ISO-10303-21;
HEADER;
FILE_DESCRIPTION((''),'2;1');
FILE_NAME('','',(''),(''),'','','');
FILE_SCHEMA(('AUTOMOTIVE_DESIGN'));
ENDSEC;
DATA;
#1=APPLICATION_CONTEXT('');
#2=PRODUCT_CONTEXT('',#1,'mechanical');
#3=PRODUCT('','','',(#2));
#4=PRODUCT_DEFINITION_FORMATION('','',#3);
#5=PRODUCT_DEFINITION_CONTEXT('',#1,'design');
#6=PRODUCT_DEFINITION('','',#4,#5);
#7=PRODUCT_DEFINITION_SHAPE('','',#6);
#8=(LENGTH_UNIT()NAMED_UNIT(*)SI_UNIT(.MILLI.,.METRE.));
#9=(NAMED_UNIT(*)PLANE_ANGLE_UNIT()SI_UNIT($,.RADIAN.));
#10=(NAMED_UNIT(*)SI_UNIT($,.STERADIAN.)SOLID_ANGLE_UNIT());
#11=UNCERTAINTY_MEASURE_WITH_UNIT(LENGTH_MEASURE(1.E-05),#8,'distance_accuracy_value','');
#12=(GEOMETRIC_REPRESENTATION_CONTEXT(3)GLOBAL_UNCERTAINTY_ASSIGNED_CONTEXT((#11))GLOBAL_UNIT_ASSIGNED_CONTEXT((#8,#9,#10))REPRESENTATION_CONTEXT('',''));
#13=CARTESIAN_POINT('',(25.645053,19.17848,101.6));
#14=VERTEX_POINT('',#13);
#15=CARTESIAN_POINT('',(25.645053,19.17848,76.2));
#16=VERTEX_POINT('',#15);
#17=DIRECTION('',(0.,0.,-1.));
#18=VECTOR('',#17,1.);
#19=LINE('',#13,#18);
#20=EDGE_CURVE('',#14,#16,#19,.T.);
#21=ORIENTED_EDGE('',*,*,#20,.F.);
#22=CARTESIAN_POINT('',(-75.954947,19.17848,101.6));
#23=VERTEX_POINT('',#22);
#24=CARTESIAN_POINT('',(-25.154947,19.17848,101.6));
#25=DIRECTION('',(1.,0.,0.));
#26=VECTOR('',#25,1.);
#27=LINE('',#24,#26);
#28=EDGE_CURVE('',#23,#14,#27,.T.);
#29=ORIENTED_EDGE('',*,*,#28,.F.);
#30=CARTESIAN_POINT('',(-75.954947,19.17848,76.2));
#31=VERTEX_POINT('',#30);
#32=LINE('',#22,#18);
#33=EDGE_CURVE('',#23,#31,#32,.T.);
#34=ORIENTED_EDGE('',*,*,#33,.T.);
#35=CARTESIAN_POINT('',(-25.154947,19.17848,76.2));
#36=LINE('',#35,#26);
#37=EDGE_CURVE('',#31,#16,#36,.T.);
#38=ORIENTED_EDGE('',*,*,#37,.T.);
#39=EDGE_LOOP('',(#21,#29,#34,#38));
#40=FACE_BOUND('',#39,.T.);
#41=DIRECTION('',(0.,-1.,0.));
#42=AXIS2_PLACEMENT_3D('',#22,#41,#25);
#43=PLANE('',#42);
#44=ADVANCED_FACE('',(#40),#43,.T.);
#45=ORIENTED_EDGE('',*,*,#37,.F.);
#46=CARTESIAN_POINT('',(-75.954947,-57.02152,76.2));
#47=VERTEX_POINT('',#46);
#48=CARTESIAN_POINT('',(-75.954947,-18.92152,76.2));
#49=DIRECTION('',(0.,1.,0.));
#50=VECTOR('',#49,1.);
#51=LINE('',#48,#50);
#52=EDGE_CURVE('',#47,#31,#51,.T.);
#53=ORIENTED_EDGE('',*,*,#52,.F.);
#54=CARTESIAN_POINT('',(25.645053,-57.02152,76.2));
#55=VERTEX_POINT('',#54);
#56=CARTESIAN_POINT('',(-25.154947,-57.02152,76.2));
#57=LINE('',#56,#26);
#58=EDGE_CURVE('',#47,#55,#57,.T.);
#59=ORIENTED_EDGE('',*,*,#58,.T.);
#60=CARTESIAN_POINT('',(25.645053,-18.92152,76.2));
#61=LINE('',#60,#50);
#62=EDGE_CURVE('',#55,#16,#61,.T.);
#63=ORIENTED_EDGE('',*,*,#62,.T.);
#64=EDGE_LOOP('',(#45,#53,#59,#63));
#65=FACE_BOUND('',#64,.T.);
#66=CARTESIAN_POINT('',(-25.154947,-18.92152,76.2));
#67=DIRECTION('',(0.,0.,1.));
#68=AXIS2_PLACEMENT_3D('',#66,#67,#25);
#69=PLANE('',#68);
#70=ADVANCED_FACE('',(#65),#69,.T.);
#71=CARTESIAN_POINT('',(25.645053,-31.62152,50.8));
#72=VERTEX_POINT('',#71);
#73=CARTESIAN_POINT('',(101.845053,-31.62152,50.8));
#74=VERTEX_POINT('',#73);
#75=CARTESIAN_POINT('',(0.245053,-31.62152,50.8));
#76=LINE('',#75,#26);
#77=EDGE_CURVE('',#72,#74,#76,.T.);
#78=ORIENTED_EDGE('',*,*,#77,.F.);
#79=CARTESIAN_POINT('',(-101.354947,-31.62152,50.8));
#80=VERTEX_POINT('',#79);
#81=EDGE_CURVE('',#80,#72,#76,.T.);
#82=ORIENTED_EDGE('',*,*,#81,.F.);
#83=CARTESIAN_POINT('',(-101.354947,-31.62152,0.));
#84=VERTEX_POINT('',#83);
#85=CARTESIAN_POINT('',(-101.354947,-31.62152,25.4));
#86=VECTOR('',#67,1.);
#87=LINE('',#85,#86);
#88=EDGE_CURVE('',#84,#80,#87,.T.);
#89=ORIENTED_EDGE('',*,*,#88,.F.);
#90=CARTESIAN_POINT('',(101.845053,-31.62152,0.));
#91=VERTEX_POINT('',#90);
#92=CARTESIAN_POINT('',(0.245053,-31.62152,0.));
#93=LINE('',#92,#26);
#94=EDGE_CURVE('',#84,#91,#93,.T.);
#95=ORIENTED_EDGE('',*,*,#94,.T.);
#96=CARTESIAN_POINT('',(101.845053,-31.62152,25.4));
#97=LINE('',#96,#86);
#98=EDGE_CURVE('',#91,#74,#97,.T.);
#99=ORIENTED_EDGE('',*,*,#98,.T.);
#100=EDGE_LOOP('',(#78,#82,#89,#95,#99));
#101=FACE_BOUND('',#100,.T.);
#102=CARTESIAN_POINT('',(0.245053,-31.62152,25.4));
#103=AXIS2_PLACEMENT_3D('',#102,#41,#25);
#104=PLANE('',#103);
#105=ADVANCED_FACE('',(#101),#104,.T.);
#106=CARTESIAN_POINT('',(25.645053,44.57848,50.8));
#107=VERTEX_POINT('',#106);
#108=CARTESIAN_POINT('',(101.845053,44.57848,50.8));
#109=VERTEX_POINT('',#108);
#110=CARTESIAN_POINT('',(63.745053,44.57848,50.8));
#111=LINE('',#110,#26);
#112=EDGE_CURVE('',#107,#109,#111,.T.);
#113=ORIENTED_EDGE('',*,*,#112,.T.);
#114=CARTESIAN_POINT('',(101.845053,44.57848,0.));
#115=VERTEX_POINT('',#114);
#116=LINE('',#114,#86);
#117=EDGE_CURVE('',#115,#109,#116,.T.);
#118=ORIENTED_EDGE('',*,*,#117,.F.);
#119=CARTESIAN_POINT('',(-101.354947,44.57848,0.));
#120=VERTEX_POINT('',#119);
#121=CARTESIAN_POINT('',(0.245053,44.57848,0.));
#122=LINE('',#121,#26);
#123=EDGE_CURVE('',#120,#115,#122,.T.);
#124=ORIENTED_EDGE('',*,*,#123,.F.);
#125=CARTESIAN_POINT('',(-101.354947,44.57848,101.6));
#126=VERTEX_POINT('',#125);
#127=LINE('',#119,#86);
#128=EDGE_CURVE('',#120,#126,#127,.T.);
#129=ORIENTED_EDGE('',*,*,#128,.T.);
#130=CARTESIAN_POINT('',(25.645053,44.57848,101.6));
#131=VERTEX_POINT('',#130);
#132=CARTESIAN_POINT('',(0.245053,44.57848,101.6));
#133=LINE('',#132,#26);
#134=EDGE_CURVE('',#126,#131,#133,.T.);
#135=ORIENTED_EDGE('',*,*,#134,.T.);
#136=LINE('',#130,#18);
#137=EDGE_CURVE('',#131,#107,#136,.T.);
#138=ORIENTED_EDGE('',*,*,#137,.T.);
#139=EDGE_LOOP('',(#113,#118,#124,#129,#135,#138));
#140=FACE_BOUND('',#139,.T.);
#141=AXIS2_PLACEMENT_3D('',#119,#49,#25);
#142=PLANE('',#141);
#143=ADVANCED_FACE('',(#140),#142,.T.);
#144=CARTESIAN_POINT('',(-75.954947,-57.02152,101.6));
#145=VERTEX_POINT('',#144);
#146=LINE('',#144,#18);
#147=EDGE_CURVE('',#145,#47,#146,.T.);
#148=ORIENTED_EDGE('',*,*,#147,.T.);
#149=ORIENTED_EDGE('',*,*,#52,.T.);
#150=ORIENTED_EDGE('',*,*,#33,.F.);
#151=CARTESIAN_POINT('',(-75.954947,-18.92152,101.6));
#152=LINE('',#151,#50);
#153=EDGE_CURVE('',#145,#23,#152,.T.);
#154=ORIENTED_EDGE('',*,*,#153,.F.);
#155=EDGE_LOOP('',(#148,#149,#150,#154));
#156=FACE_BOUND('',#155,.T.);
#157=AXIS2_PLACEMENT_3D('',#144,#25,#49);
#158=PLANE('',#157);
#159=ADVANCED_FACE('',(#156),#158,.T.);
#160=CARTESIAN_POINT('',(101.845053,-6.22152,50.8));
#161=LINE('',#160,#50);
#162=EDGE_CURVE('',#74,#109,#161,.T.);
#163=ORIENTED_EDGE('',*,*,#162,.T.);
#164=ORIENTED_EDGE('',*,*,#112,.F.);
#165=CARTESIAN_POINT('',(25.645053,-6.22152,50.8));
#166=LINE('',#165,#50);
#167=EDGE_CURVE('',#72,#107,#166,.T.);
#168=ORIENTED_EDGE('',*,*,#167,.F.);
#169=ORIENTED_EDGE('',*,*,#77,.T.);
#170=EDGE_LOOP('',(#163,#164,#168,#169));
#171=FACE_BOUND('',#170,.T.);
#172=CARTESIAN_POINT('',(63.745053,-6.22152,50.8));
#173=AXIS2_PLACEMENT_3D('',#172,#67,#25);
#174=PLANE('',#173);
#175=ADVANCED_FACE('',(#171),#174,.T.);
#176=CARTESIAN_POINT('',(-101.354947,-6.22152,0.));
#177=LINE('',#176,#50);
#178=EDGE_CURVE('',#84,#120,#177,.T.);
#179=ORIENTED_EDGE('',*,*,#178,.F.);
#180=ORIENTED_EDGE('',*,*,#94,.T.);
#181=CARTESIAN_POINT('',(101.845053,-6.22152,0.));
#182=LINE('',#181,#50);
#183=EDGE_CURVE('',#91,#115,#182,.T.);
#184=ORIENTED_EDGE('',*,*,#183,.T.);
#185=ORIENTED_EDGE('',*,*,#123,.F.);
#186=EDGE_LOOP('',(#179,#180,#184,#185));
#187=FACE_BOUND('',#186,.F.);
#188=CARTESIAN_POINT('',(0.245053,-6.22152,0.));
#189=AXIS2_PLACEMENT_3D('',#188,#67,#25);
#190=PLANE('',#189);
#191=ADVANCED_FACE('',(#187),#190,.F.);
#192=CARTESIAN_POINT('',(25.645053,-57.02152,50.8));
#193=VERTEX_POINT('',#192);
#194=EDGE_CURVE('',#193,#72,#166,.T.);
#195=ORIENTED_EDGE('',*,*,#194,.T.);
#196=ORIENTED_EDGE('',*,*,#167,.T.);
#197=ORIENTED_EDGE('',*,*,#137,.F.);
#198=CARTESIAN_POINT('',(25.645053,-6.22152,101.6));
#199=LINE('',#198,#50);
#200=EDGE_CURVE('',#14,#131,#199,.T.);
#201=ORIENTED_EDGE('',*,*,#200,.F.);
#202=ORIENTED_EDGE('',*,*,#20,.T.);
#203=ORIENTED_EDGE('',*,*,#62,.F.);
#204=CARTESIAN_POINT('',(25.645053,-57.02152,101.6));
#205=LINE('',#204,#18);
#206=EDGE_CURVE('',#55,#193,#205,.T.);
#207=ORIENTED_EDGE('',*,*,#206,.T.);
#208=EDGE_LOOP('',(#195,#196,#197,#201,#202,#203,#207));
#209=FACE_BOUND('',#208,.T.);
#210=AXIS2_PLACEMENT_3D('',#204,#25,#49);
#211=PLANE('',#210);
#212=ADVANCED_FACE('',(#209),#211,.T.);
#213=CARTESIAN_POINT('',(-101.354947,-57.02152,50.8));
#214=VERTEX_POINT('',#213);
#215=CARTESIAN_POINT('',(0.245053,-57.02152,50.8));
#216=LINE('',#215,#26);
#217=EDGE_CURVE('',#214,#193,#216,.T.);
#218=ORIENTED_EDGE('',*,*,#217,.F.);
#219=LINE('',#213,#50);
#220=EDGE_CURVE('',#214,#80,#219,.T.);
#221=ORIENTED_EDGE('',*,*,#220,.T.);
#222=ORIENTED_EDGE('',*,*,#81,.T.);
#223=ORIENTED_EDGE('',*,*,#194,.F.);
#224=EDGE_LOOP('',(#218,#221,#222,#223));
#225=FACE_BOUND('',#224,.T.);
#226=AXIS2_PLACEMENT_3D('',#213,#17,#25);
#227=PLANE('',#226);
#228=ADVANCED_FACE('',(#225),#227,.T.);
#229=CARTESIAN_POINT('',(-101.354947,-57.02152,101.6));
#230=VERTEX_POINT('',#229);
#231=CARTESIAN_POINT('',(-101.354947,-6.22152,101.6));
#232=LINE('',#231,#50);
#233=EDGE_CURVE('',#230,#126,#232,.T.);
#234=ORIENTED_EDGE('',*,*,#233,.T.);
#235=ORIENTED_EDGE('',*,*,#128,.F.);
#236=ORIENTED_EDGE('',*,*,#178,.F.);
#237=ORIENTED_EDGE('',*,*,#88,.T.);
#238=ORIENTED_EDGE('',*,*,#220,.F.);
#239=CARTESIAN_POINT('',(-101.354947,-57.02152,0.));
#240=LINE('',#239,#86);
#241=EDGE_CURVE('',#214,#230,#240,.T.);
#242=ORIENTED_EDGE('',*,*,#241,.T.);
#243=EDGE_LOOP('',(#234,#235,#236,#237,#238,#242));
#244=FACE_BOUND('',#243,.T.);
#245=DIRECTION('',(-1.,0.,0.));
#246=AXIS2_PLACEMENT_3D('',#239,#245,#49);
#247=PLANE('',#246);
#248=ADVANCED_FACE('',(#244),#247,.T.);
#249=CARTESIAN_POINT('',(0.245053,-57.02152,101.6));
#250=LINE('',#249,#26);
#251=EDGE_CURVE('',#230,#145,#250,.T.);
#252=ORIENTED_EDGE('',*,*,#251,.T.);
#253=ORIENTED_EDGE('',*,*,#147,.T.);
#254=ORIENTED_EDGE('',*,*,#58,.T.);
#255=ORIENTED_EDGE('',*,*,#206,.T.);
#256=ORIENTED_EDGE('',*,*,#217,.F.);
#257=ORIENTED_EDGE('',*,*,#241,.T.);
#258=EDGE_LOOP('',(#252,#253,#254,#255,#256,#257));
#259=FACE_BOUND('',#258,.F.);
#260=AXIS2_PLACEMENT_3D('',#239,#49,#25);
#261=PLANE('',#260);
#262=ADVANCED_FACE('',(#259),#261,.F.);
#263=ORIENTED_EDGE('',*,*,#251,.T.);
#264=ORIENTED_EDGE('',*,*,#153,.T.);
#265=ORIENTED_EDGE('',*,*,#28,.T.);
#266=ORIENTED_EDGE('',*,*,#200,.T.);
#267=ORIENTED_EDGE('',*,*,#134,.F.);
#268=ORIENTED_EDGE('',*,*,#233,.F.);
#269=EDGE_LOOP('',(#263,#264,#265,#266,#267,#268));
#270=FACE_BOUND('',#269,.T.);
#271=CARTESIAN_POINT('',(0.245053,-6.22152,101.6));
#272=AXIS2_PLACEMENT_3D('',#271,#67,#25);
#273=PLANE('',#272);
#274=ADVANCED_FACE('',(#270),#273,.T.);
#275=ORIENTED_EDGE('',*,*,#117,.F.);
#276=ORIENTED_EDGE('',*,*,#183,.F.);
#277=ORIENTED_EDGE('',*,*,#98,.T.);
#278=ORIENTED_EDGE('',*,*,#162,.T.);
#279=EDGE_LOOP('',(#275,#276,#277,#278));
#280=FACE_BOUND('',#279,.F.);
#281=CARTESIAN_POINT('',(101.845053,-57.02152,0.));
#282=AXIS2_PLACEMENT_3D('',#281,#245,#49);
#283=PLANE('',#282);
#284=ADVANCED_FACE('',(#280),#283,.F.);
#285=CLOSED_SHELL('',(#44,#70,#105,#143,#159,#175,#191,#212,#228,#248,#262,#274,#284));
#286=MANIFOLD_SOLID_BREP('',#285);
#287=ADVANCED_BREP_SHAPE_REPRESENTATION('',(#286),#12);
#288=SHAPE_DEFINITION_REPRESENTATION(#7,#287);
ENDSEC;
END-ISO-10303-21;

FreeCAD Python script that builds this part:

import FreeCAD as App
import Part
import Sketcher
from FreeCAD import Vector
Q = App.Units.Quantity

doc = App.newDocument("Part")
body = doc.addObject("PartDesign::Body", "Body")

# Sketch on XY plane
sketch1 = body.newObject("Sketcher::SketchObject", "Sketch")
sketch1.AttachmentSupport = (doc.getObject("XY_Plane"), [""])
sketch1.MapMode = "FlatFace"
sketch1.addGeometry(Part.LineSegment(Vector(-101, 45, 0), Vector(-101, -57, 0)), False)
sketch1.addGeometry(Part.LineSegment(Vector(-101, -57, 0), Vector(102, -57, 0)), False)
sketch1.addGeometry(Part.LineSegment(Vector(102, -57, 0), Vector(102, 45, 0)), False)
sketch1.addGeometry(Part.LineSegment(Vector(102, 45, 0), Vector(-101, 45, 0)), False)
sketch1.addConstraint(Sketcher.Constraint("Coincident", 0, 2, 1, 1))
sketch1.addConstraint(Sketcher.Constraint("Coincident", 1, 2, 2, 1))
sketch1.addConstraint(Sketcher.Constraint("Coincident", 2, 2, 3, 1))
sketch1.addConstraint(Sketcher.Constraint("Coincident", 3, 2, 0, 1))
sketch1.addConstraint(Sketcher.Constraint("Vertical", 0))
sketch1.addConstraint(Sketcher.Constraint("Horizontal", 1))
sketch1.addConstraint(Sketcher.Constraint("Vertical", 2))
sketch1.addConstraint(Sketcher.Constraint("Horizontal", 3))
sketch1.addConstraint(Sketcher.Constraint("DistanceX", 1, 1, 1, 2, Q("8 in")))
sketch1.addConstraint(Sketcher.Constraint("DistanceY", 0, 2, 0, 1, Q("4 in")))
sketch1.addConstraint(Sketcher.Constraint("DistanceY", 0, 2, -1, 1, Q("57.02152 mm")))
sketch1.addConstraint(Sketcher.Constraint("DistanceX", 0, 2, -1, 1, Q("101.354947 mm")))
pad1 = body.newObject("PartDesign::Pad", "Pad")
pad1.Profile = sketch1
pad1.Length = Q("4 in")

# Sketch on XZ plane
sketch2 = body.newObject("Sketcher::SketchObject", "Sketch001")
sketch2.AttachmentSupport = (doc.getObject("XZ_Plane"), [""])
sketch2.MapMode = "FlatFace"
sketch2.AttachmentOffset = App.Placement(Vector(0, 0, 57.02152), App.Rotation())
sketch2.addGeometry(Part.LineSegment(Vector(-101, 51, 0), Vector(-101, 0, 0)), False)
sketch2.addGeometry(Part.LineSegment(Vector(-101, 0, 0), Vector(102, 0, 0)), False)
sketch2.addGeometry(Part.LineSegment(Vector(102, 0, 0), Vector(102, 51, 0)), False)
sketch2.addGeometry(Part.LineSegment(Vector(102, 51, 0), Vector(-101, 51, 0)), False)
sketch2.addConstraint(Sketcher.Constraint("Coincident", 0, 2, 1, 1))
sketch2.addConstraint(Sketcher.Constraint("Coincident", 1, 2, 2, 1))
sketch2.addConstraint(Sketcher.Constraint("Coincident", 2, 2, 3, 1))
sketch2.addConstraint(Sketcher.Constraint("Coincident", 3, 2, 0, 1))
sketch2.addConstraint(Sketcher.Constraint("Vertical", 0))
sketch2.addConstraint(Sketcher.Constraint("Horizontal", 1))
sketch2.addConstraint(Sketcher.Constraint("Vertical", 2))
sketch2.addConstraint(Sketcher.Constraint("Horizontal", 3))
sketch2.addConstraint(Sketcher.Constraint("PointOnObject", 0, 2, -1))
sketch2.addConstraint(Sketcher.Constraint("DistanceX", 1, 1, 1, 2, Q("8 in")))
sketch2.addConstraint(Sketcher.Constraint("DistanceY", 0, 2, 0, 1, Q("2 in")))
sketch2.addConstraint(Sketcher.Constraint("DistanceX", 0, 2, -1, 1, Q("101.354947 mm")))
pocket1 = body.newObject("PartDesign::Pocket", "Pocket")
pocket1.Profile = sketch2
pocket1.Length = Q("1 in")

# Sketch on XY plane
sketch3 = body.newObject("Sketcher::SketchObject", "Sketch002")
sketch3.AttachmentSupport = (doc.getObject("XY_Plane"), [""])
sketch3.MapMode = "FlatFace"
sketch3.AttachmentOffset = App.Placement(Vector(0, 0, 4 * 25.4), App.Rotation())
sketch3.addGeometry(Part.LineSegment(Vector(26, 45, 0), Vector(26, -57, 0)), False)
sketch3.addGeometry(Part.LineSegment(Vector(26, -57, 0), Vector(102, -57, 0)), False)
sketch3.addGeometry(Part.LineSegment(Vector(102, -57, 0), Vector(102, 45, 0)), False)
sketch3.addGeometry(Part.LineSegment(Vector(102, 45, 0), Vector(26, 45, 0)), False)
sketch3.addConstraint(Sketcher.Constraint("Coincident", 0, 2, 1, 1))
sketch3.addConstraint(Sketcher.Constraint("Coincident", 1, 2, 2, 1))
sketch3.addConstraint(Sketcher.Constraint("Coincident", 2, 2, 3, 1))
sketch3.addConstraint(Sketcher.Constraint("Coincident", 3, 2, 0, 1))
sketch3.addConstraint(Sketcher.Constraint("Vertical", 0))
sketch3.addConstraint(Sketcher.Constraint("Horizontal", 1))
sketch3.addConstraint(Sketcher.Constraint("Vertical", 2))
sketch3.addConstraint(Sketcher.Constraint("Horizontal", 3))
sketch3.addConstraint(Sketcher.Constraint("DistanceX", 1, 1, 1, 2, Q("3 in")))
sketch3.addConstraint(Sketcher.Constraint("DistanceY", 0, 2, 0, 1, Q("4 in")))
sketch3.addConstraint(Sketcher.Constraint("DistanceY", 0, 2, -1, 1, Q("57.02152 mm")))
sketch3.addConstraint(Sketcher.Constraint("DistanceX", -1, 1, 0, 2, Q("25.645053 mm")))
pocket2 = body.newObject("PartDesign::Pocket", "Pocket001")
pocket2.Profile = sketch3
pocket2.Length = Q("2 in")

# Sketch on XY plane
sketch4 = body.newObject("Sketcher::SketchObject", "Sketch003")
sketch4.AttachmentSupport = (doc.getObject("XY_Plane"), [""])
sketch4.MapMode = "FlatFace"
sketch4.AttachmentOffset = App.Placement(Vector(0, 0, 4 * 25.4), App.Rotation())
sketch4.addGeometry(Part.LineSegment(Vector(-76, 19, 0), Vector(-76, -57, 0)), False)
sketch4.addGeometry(Part.LineSegment(Vector(-76, -57, 0), Vector(26, -57, 0)), False)
sketch4.addGeometry(Part.LineSegment(Vector(26, -57, 0), Vector(26, 19, 0)), False)
sketch4.addGeometry(Part.LineSegment(Vector(26, 19, 0), Vector(-76, 19, 0)), False)
sketch4.addConstraint(Sketcher.Constraint("Coincident", 0, 2, 1, 1))
sketch4.addConstraint(Sketcher.Constraint("Coincident", 1, 2, 2, 1))
sketch4.addConstraint(Sketcher.Constraint("Coincident", 2, 2, 3, 1))
sketch4.addConstraint(Sketcher.Constraint("Coincident", 3, 2, 0, 1))
sketch4.addConstraint(Sketcher.Constraint("Vertical", 0))
sketch4.addConstraint(Sketcher.Constraint("Horizontal", 1))
sketch4.addConstraint(Sketcher.Constraint("Vertical", 2))
sketch4.addConstraint(Sketcher.Constraint("Horizontal", 3))
sketch4.addConstraint(Sketcher.Constraint("DistanceX", 1, 1, 1, 2, Q("4 in")))
sketch4.addConstraint(Sketcher.Constraint("DistanceY", 0, 2, 0, 1, Q("3 in")))
sketch4.addConstraint(Sketcher.Constraint("DistanceY", 0, 2, -1, 1, Q("57.02152 mm")))
sketch4.addConstraint(Sketcher.Constraint("DistanceX", 0, 2, -1, 1, Q("75.954947 mm")))
pocket3 = body.newObject("PartDesign::Pocket", "Pocket002")
pocket3.Profile = sketch4
pocket3.Length = Q("1 in")

doc.recompute()
